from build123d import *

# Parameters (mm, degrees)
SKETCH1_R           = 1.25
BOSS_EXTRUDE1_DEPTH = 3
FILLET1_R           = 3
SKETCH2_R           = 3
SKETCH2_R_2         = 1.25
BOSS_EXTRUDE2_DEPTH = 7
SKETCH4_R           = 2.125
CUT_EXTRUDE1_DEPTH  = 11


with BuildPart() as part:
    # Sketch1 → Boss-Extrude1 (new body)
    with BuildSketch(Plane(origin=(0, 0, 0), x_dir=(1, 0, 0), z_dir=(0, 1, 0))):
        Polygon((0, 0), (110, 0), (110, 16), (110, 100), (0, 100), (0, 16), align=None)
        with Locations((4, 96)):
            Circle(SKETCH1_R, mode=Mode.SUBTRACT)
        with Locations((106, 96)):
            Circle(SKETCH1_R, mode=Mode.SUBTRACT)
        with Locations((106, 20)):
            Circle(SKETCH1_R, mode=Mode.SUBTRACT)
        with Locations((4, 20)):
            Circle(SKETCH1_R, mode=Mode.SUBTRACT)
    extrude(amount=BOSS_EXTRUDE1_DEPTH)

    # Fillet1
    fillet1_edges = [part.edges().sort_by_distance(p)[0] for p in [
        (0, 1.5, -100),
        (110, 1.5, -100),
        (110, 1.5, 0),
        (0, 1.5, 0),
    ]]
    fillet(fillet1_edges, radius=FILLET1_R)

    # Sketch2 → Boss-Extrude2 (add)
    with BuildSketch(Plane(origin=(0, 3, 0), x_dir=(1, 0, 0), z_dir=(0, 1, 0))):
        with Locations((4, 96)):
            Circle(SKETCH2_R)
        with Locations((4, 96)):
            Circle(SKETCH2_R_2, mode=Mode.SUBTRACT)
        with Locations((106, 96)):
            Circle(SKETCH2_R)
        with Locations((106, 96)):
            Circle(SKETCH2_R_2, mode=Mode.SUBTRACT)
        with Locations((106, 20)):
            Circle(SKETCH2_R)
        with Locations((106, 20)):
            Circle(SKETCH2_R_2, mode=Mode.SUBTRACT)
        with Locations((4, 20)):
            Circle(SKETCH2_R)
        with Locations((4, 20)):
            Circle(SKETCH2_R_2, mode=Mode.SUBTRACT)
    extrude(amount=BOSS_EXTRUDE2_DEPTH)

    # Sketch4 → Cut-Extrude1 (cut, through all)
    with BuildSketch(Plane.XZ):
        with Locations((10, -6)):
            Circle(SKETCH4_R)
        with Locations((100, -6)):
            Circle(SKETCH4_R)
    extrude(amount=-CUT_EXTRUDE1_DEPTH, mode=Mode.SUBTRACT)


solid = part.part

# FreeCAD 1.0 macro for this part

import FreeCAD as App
import Part
import Sketcher
from FreeCAD import Vector


def edges_at(feature, points):
    """Names of the edges that pass closest to the given points."""
    edges = feature.Shape.Edges
    near = lambda p: min(range(len(edges)), key=lambda i: edges[i].distToShape(Part.Vertex(*p))[0])
    return sorted({f"Edge{near(p) + 1}" for p in points})


def add_polygon(sketch, points):
    """Adds a closed chain of lines whose ends are joined by coincident constraints."""
    first, n = sketch.GeometryCount, len(points)
    for a, b in zip(points, points[1:] + points[:1]):
        sketch.addGeometry(Part.LineSegment(App.Vector(*a, 0), App.Vector(*b, 0)), False)
    for i in range(n):
        sketch.addConstraint(Sketcher.Constraint("Coincident", first + i, 2, first + (i + 1) % n, 1))

doc = App.newDocument("Part")
body = doc.addObject("PartDesign::Body", "Body")

# Sketch on XZ plane
sketch1 = body.newObject("Sketcher::SketchObject", "Sketch")
sketch1.AttachmentSupport = (doc.getObject("XZ_Plane"), [""])
sketch1.MapMode = "FlatFace"
add_polygon(sketch1, [(0, 0), (110, 0), (110, -100), (0, -100)])  # lines 0-3
sketch1.addGeometry(Part.Circle(Vector(4, -20, 0), Vector(0, 0, 1), 1.2), False)  # 4
sketch1.addGeometry(Part.Circle(Vector(106, -20, 0), Vector(0, 0, 1), 1.2), False)  # 5
sketch1.addGeometry(Part.Circle(Vector(4, -96, 0), Vector(0, 0, 1), 1.2), False)  # 6
sketch1.addGeometry(Part.Circle(Vector(106, -96, 0), Vector(0, 0, 1), 1.2), False)  # 7
sketch1.addConstraint(Sketcher.Constraint("Horizontal", 0))
sketch1.addConstraint(Sketcher.Constraint("Vertical", 1))
sketch1.addConstraint(Sketcher.Constraint("Horizontal", 2))
sketch1.addConstraint(Sketcher.Constraint("Vertical", 3))
sketch1.addConstraint(Sketcher.Constraint("Coincident", 3, 2, -1, 1))
sketch1.addConstraint(Sketcher.Constraint("Equal", 4, 5))
sketch1.addConstraint(Sketcher.Constraint("Equal", 5, 6))
sketch1.addConstraint(Sketcher.Constraint("Equal", 6, 7))
sketch1.addConstraint(Sketcher.Constraint("Horizontal", 4, 3, 5, 3))
sketch1.addConstraint(Sketcher.Constraint("Horizontal", 6, 3, 7, 3))
sketch1.addConstraint(Sketcher.Constraint("Vertical", 4, 3, 6, 3))
sketch1.addConstraint(Sketcher.Constraint("Vertical", 5, 3, 7, 3))
sketch1.addConstraint(Sketcher.Constraint("Diameter", 4, 2.5))
sketch1.addConstraint(Sketcher.Constraint("DistanceX", 0, 1, 0, 2, 110.0))
sketch1.addConstraint(Sketcher.Constraint("DistanceY", 1, 2, 1, 1, 100.0))
sketch1.addConstraint(Sketcher.Constraint("DistanceX", -1, 1, 4, 3, 4.0))
sketch1.addConstraint(Sketcher.Constraint("DistanceY", 4, 3, -1, 1, 20.0))
sketch1.addConstraint(Sketcher.Constraint("DistanceX", -1, 1, 5, 3, 106.0))
sketch1.addConstraint(Sketcher.Constraint("DistanceY", 6, 3, -1, 1, 96.0))
pad1 = body.newObject("PartDesign::Pad", "Pad")
pad1.Profile = sketch1
pad1.Length = 3
pad1.Reversed = True
doc.recompute()

fillet = body.newObject("PartDesign::Fillet", "Fillet")
fillet.Base = (pad1, edges_at(pad1, [
    (0, 1.5, -100),
    (110, 1.5, -100),
    (110, 1.5, 0),
    (0, 1.5, 0),
]))
fillet.Radius = 3

# Sketch on XZ plane
sketch2 = body.newObject("Sketcher::SketchObject", "Sketch001")
sketch2.AttachmentSupport = (doc.getObject("XZ_Plane"), [""])
sketch2.MapMode = "FlatFace"
sketch2.AttachmentOffset = App.Placement(Vector(0, 0, -3), App.Rotation())
sketch2.addGeometry(Part.Circle(Vector(4, -96, 0), Vector(0, 0, 1), 3), False)
sketch2.addGeometry(Part.Circle(Vector(4, -96, 0), Vector(0, 0, 1), 1.2), False)
sketch2.addGeometry(Part.Circle(Vector(106, -96, 0), Vector(0, 0, 1), 3), False)
sketch2.addGeometry(Part.Circle(Vector(106, -96, 0), Vector(0, 0, 1), 1.2), False)
sketch2.addGeometry(Part.Circle(Vector(106, -20, 0), Vector(0, 0, 1), 3), False)
sketch2.addGeometry(Part.Circle(Vector(106, -20, 0), Vector(0, 0, 1), 1.2), False)
sketch2.addGeometry(Part.Circle(Vector(4, -20, 0), Vector(0, 0, 1), 3), False)
sketch2.addGeometry(Part.Circle(Vector(4, -20, 0), Vector(0, 0, 1), 1.2), False)
sketch2.addConstraint(Sketcher.Constraint("Coincident", 1, 3, 0, 3))
sketch2.addConstraint(Sketcher.Constraint("Coincident", 3, 3, 2, 3))
sketch2.addConstraint(Sketcher.Constraint("Coincident", 5, 3, 4, 3))
sketch2.addConstraint(Sketcher.Constraint("Coincident", 7, 3, 6, 3))
sketch2.addConstraint(Sketcher.Constraint("Equal", 0, 2))
sketch2.addConstraint(Sketcher.Constraint("Equal", 1, 3))
sketch2.addConstraint(Sketcher.Constraint("Equal", 2, 4))
sketch2.addConstraint(Sketcher.Constraint("Equal", 3, 5))
sketch2.addConstraint(Sketcher.Constraint("Equal", 4, 6))
sketch2.addConstraint(Sketcher.Constraint("Equal", 5, 7))
sketch2.addConstraint(Sketcher.Constraint("Horizontal", 1, 3, 2, 3))
sketch2.addConstraint(Sketcher.Constraint("Horizontal", 5, 3, 6, 3))
sketch2.addConstraint(Sketcher.Constraint("Vertical", 3, 3, 4, 3))
sketch2.addConstraint(Sketcher.Constraint("Vertical", 1, 3, 6, 3))
sketch2.addConstraint(Sketcher.Constraint("Diameter", 0, 6.0))
sketch2.addConstraint(Sketcher.Constraint("Diameter", 1, 2.5))
sketch2.addConstraint(Sketcher.Constraint("DistanceX", -1, 1, 0, 3, 4.0))
sketch2.addConstraint(Sketcher.Constraint("DistanceY", 0, 3, -1, 1, 96.0))
sketch2.addConstraint(Sketcher.Constraint("DistanceX", -1, 1, 2, 3, 106.0))
sketch2.addConstraint(Sketcher.Constraint("DistanceY", 4, 3, -1, 1, 20.0))
pad2 = body.newObject("PartDesign::Pad", "Pad001")
pad2.Profile = sketch2
pad2.Length = 7
pad2.Reversed = True

# Sketch on XZ plane
sketch3 = body.newObject("Sketcher::SketchObject", "Sketch002")
sketch3.AttachmentSupport = (doc.getObject("XZ_Plane"), [""])
sketch3.MapMode = "FlatFace"
sketch3.addGeometry(Part.Circle(Vector(10, -6, 0), Vector(0, 0, 1), 2.1), False)
sketch3.addGeometry(Part.Circle(Vector(100, -6, 0), Vector(0, 0, 1), 2.1), False)
sketch3.addConstraint(Sketcher.Constraint("Equal", 0, 1))
sketch3.addConstraint(Sketcher.Constraint("Horizontal", 0, 3, 1, 3))
sketch3.addConstraint(Sketcher.Constraint("Diameter", 0, 4.25))
sketch3.addConstraint(Sketcher.Constraint("DistanceX", -1, 1, 0, 3, 10.0))
sketch3.addConstraint(Sketcher.Constraint("DistanceY", 0, 3, -1, 1, 6.0))
sketch3.addConstraint(Sketcher.Constraint("DistanceX", -1, 1, 1, 3, 100.0))
pocket1 = body.newObject("PartDesign::Pocket", "Pocket")
pocket1.Profile = sketch3
pocket1.Type = "ThroughAll"

doc.recompute()
